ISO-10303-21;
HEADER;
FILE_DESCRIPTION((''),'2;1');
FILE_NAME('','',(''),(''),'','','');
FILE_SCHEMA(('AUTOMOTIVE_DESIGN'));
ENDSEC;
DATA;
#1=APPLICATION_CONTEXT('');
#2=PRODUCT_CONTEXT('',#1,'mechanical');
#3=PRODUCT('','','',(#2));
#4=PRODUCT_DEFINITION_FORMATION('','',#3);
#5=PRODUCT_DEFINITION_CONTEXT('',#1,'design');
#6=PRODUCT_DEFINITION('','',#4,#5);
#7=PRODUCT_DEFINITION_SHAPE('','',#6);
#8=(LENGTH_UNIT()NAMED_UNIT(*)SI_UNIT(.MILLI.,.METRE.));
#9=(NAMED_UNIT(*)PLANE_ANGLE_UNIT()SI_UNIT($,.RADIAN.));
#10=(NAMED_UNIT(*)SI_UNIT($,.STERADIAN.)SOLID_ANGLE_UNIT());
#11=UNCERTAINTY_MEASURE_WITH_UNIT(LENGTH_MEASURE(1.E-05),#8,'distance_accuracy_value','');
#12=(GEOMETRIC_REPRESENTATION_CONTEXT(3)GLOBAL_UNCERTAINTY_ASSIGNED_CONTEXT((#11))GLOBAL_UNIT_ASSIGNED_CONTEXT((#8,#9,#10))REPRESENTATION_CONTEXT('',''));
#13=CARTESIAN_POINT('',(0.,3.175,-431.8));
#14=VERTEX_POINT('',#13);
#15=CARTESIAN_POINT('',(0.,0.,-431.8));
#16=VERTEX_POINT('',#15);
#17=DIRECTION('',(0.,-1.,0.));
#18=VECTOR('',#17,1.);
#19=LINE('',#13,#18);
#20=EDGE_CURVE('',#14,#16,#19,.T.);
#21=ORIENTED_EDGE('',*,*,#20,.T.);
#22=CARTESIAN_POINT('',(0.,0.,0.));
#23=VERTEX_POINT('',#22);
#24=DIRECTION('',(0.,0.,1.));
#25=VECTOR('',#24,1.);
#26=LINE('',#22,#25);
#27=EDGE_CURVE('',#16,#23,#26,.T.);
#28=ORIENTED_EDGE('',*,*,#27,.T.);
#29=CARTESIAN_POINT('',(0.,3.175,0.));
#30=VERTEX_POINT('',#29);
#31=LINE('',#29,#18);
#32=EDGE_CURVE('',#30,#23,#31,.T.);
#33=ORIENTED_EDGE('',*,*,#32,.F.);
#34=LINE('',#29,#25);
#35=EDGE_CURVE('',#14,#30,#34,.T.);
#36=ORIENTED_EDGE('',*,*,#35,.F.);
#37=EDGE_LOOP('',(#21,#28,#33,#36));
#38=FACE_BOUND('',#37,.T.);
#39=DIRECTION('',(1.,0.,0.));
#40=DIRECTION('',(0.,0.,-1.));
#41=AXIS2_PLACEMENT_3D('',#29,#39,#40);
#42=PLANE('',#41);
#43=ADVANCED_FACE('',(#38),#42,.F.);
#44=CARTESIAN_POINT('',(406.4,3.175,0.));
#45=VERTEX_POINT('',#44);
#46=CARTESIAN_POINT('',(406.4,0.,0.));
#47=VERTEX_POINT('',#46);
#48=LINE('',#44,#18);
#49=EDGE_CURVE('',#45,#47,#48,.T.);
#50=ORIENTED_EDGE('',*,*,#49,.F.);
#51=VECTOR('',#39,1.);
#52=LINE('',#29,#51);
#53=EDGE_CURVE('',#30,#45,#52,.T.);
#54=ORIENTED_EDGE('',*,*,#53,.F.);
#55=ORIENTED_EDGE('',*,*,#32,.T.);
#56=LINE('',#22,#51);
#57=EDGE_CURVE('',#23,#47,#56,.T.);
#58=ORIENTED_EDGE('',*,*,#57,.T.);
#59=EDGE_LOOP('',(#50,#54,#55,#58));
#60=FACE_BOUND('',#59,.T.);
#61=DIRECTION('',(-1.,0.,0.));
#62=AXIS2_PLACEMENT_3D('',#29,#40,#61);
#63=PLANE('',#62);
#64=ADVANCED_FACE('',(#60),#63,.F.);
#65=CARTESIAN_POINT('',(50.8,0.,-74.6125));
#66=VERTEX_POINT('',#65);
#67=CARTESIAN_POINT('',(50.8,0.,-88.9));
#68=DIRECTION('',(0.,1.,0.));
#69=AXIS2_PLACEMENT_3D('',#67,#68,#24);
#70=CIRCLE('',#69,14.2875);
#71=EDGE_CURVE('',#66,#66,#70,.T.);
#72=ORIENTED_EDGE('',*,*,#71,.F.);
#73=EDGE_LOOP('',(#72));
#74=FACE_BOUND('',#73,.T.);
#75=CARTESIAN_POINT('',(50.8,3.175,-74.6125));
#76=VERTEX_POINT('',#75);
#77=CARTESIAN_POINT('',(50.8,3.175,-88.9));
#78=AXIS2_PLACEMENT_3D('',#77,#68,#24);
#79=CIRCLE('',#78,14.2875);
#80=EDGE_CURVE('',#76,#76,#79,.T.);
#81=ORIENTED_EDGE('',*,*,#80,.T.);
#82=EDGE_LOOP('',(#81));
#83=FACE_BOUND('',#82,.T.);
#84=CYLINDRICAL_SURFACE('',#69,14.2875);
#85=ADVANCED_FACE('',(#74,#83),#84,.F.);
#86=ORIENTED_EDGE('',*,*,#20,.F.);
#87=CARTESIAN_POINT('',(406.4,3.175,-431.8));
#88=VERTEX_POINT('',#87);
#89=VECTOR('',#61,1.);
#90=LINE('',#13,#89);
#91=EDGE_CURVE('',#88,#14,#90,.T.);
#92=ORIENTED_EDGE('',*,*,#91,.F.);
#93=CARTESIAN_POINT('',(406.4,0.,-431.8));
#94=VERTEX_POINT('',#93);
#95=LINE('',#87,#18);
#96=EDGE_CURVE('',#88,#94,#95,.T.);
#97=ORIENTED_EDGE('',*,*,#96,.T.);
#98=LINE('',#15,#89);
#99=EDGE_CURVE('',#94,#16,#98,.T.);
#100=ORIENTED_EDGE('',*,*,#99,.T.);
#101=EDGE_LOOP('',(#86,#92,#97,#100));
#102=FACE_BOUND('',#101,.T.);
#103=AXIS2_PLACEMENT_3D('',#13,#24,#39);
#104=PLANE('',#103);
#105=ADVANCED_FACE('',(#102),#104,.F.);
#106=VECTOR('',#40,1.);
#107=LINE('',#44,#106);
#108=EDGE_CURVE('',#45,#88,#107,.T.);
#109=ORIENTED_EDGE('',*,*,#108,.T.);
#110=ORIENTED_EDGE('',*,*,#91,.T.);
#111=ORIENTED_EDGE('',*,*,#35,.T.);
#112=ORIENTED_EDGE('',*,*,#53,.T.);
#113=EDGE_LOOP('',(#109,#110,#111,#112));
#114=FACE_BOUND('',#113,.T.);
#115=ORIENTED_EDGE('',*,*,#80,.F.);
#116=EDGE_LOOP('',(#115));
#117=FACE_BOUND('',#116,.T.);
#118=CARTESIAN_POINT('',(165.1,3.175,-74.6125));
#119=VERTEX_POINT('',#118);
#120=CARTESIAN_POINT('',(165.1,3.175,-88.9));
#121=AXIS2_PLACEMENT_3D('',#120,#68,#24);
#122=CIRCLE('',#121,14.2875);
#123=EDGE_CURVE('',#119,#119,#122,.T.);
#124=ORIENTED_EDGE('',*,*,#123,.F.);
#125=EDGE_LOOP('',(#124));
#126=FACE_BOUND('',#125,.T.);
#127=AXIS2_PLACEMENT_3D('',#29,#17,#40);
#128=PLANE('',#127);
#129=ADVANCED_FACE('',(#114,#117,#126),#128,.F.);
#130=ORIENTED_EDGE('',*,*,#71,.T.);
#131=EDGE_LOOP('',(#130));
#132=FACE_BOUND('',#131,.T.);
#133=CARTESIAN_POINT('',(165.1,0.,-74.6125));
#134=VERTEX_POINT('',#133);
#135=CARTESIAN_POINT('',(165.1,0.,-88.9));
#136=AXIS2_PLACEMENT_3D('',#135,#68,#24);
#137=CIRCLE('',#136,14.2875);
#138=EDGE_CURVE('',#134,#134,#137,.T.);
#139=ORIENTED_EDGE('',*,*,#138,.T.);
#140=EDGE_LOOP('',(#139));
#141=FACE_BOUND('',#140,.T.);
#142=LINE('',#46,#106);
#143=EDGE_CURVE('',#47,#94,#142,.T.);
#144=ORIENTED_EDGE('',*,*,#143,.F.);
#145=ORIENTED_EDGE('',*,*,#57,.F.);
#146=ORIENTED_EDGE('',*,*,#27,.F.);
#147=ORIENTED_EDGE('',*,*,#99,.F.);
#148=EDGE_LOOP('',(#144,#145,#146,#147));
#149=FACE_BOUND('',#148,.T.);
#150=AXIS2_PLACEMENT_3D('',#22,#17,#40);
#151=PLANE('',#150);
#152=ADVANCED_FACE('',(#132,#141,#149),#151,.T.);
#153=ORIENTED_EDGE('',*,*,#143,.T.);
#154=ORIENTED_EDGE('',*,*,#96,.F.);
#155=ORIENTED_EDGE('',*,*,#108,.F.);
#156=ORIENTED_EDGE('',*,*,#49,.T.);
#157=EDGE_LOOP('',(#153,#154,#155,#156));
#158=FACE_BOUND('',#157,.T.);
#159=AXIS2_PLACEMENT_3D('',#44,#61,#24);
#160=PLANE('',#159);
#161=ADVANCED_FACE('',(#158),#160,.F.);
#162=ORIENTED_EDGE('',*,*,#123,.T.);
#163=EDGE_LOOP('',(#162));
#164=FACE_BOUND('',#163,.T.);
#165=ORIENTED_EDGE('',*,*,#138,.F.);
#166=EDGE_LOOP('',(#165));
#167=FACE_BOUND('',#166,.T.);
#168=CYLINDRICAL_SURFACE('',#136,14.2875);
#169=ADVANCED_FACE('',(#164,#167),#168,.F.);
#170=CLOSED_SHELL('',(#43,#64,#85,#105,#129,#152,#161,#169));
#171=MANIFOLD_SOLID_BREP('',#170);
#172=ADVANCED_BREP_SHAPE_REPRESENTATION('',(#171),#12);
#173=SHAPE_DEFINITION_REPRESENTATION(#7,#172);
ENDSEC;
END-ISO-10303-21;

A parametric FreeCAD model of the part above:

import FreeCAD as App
import Part
import Sketcher

V = App.Vector
Q = App.Units.Quantity

doc = App.newDocument("Part")
body = doc.addObject("PartDesign::Body", "Body")

# Sketch on XZ plane
sketch1 = body.newObject("Sketcher::SketchObject", "Sketch")
sketch1.AttachmentSupport = (doc.getObject("XZ_Plane"), [""])
sketch1.MapMode = "FlatFace"
sketch1.addGeometry(Part.LineSegment(V(0, -432, 0), V(0, 0, 0)), False)
sketch1.addGeometry(Part.LineSegment(V(0, 0, 0), V(406, 0, 0)), False)
sketch1.addGeometry(Part.LineSegment(V(406, 0, 0), V(406, -432, 0)), False)
sketch1.addGeometry(Part.LineSegment(V(406, -432, 0), V(0, -432, 0)), False)
sketch1.addConstraint(Sketcher.Constraint("Coincident", 0, 2, 1, 1))
sketch1.addConstraint(Sketcher.Constraint("Coincident", 1, 2, 2, 1))
sketch1.addConstraint(Sketcher.Constraint("Coincident", 2, 2, 3, 1))
sketch1.addConstraint(Sketcher.Constraint("Coincident", 3, 2, 0, 1))
sketch1.addConstraint(Sketcher.Constraint("Vertical", 0))
sketch1.addConstraint(Sketcher.Constraint("Horizontal", 1))
sketch1.addConstraint(Sketcher.Constraint("Vertical", 2))
sketch1.addConstraint(Sketcher.Constraint("Horizontal", 3))
sketch1.addConstraint(Sketcher.Constraint("Coincident", 0, 2, -1, 1))
sketch1.addConstraint(Sketcher.Constraint("DistanceX", 1, 1, 1, 2, Q("16 in")))
sketch1.addConstraint(Sketcher.Constraint("DistanceY", 0, 1, 0, 2, Q("17 in")))
pad1 = body.newObject("PartDesign::Pad", "Pad")
pad1.Profile = sketch1
pad1.Length = Q("0.125 in")
pad1.Reversed = True

# Sketch on XZ plane
sketch2 = body.newObject("Sketcher::SketchObject", "Sketch001")
sketch2.AttachmentSupport = (doc.getObject("XZ_Plane"), [""])
sketch2.MapMode = "FlatFace"
sketch2.AttachmentOffset = App.Placement(V(0, 0, -0.125 * 25.4), App.Rotation())
sketch2.addGeometry(Part.Circle(V(51, -89, 0), V(0, 0, 1), 14), False)
sketch2.addGeometry(Part.Circle(V(165, -89, 0), V(0, 0, 1), 14), False)
sketch2.addConstraint(Sketcher.Constraint("Equal", 0, 1))
sketch2.addConstraint(Sketcher.Constraint("Horizontal", 0, 3, 1, 3))
sketch2.addConstraint(Sketcher.Constraint("Diameter", 0, Q("1.125 in")))
sketch2.addConstraint(Sketcher.Constraint("DistanceX", -1, 1, 0, 3, Q("2 in")))
sketch2.addConstraint(Sketcher.Constraint("DistanceY", 0, 3, -1, 1, Q("3.5 in")))
sketch2.addConstraint(Sketcher.Constraint("DistanceX", -1, 1, 1, 3, Q("6.5 in")))
pocket1 = body.newObject("PartDesign::Pocket", "Pocket")
pocket1.Profile = sketch2
pocket1.Length = Q("0.125 in")
pocket1.Reversed = True

doc.recompute()
